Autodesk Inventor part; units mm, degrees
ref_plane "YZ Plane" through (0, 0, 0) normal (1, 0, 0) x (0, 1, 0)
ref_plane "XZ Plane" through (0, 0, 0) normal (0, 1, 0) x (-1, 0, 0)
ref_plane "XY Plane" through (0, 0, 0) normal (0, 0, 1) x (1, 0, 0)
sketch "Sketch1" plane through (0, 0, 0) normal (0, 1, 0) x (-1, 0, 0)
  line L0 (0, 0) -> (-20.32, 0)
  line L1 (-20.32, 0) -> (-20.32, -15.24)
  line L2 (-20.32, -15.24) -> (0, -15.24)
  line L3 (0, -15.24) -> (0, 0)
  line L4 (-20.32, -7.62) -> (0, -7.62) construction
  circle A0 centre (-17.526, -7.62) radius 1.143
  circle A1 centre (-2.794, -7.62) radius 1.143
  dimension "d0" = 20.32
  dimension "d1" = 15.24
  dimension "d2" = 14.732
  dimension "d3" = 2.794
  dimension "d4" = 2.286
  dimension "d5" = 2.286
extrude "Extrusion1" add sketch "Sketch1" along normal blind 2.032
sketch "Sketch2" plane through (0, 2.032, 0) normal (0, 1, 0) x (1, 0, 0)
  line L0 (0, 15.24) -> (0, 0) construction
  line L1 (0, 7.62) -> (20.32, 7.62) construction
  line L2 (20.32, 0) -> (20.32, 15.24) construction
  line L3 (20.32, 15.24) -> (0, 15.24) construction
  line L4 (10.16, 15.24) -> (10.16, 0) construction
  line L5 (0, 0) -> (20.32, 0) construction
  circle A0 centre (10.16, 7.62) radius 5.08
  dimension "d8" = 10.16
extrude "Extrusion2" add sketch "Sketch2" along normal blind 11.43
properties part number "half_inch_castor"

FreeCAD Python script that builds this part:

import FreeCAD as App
import Part
import Sketcher
Q = App.Units.Quantity

doc = App.newDocument("Part")
body = doc.addObject("PartDesign::Body", "Body")

# Sketch on XZ plane
sketch1 = doc.addObject("Sketcher::SketchObject", "Sketch")
body.addObject(sketch1)
sketch1.AttachmentSupport = (doc.XZ_Plane, [""])
sketch1.MapMode = "FlatFace"
sketch1.addGeometry([
    Part.LineSegment(App.Vector(0, -15.24, 0), App.Vector(0, 0, 0)),  # 0
    Part.LineSegment(App.Vector(0, 0, 0), App.Vector(20.32, 0, 0)),  # 1
    Part.LineSegment(App.Vector(20.32, 0, 0), App.Vector(20.32, -15.24, 0)),  # 2
    Part.LineSegment(App.Vector(20.32, -15.24, 0), App.Vector(0, -15.24, 0)),  # 3
    Part.Circle(App.Vector(17.526, -7.62, 0), App.Vector(0, 0, 1), 1.143),  # 4
    Part.Circle(App.Vector(2.794, -7.62, 0), App.Vector(0, 0, 1), 1.143),  # 5
], False)
sketch1.addConstraint([
    Sketcher.Constraint("Coincident", 0, 2, 1, 1),
    Sketcher.Constraint("Coincident", 1, 2, 2, 1),
    Sketcher.Constraint("Coincident", 2, 2, 3, 1),
    Sketcher.Constraint("Coincident", 3, 2, 0, 1),
    Sketcher.Constraint("Vertical", 0),
    Sketcher.Constraint("Horizontal", 1),
    Sketcher.Constraint("Vertical", 2),
    Sketcher.Constraint("Horizontal", 3),
    Sketcher.Constraint("Coincident", 0, 2, -1, 1),
    Sketcher.Constraint("Equal", 4, 5),
    Sketcher.Constraint("Horizontal", 4, 3, 5, 3),
    Sketcher.Constraint("Diameter", 4, Q("0.09 in")),
    Sketcher.Constraint("DistanceX", 1, 1, 1, 2, Q("0.8 in")),
    Sketcher.Constraint("DistanceY", 0, 1, 0, 2, Q("0.6 in")),
    Sketcher.Constraint("DistanceX", -1, 1, 5, 3, Q("0.11 in")),
    Sketcher.Constraint("DistanceX", 5, 3, 4, 3, Q("0.58 in")),
    Sketcher.Constraint("DistanceY", 4, 3, -1, 1, Q("0.3 in")),
])
pad1 = doc.addObject("PartDesign::Pad", "Pad")
body.addObject(pad1)
pad1.Profile = sketch1
pad1.Length = Q("0.08 in")
pad1.Reversed = True

# Sketch on XZ plane
sketch2 = doc.addObject("Sketcher::SketchObject", "Sketch001")
body.addObject(sketch2)
sketch2.AttachmentSupport = (doc.XZ_Plane, [""])
sketch2.MapMode = "FlatFace"
sketch2.AttachmentOffset = App.Placement(App.Vector(0, 0, -0.08 * 25.4), App.Rotation())
sketch2.addGeometry(Part.Circle(App.Vector(10.16, -7.62, 0), App.Vector(0, 0, 1), 5.08), False)
sketch2.addConstraint([
    Sketcher.Constraint("Diameter", 0, Q("0.4 in")),
    Sketcher.Constraint("DistanceX", -1, 1, 0, 3, Q("0.4 in")),
    Sketcher.Constraint("DistanceY", 0, 3, -1, 1, Q("0.3 in")),
])
pad2 = doc.addObject("PartDesign::Pad", "Pad001")
body.addObject(pad2)
pad2.Profile = sketch2
pad2.Length = Q("0.45 in")
pad2.Reversed = True

doc.recompute()
